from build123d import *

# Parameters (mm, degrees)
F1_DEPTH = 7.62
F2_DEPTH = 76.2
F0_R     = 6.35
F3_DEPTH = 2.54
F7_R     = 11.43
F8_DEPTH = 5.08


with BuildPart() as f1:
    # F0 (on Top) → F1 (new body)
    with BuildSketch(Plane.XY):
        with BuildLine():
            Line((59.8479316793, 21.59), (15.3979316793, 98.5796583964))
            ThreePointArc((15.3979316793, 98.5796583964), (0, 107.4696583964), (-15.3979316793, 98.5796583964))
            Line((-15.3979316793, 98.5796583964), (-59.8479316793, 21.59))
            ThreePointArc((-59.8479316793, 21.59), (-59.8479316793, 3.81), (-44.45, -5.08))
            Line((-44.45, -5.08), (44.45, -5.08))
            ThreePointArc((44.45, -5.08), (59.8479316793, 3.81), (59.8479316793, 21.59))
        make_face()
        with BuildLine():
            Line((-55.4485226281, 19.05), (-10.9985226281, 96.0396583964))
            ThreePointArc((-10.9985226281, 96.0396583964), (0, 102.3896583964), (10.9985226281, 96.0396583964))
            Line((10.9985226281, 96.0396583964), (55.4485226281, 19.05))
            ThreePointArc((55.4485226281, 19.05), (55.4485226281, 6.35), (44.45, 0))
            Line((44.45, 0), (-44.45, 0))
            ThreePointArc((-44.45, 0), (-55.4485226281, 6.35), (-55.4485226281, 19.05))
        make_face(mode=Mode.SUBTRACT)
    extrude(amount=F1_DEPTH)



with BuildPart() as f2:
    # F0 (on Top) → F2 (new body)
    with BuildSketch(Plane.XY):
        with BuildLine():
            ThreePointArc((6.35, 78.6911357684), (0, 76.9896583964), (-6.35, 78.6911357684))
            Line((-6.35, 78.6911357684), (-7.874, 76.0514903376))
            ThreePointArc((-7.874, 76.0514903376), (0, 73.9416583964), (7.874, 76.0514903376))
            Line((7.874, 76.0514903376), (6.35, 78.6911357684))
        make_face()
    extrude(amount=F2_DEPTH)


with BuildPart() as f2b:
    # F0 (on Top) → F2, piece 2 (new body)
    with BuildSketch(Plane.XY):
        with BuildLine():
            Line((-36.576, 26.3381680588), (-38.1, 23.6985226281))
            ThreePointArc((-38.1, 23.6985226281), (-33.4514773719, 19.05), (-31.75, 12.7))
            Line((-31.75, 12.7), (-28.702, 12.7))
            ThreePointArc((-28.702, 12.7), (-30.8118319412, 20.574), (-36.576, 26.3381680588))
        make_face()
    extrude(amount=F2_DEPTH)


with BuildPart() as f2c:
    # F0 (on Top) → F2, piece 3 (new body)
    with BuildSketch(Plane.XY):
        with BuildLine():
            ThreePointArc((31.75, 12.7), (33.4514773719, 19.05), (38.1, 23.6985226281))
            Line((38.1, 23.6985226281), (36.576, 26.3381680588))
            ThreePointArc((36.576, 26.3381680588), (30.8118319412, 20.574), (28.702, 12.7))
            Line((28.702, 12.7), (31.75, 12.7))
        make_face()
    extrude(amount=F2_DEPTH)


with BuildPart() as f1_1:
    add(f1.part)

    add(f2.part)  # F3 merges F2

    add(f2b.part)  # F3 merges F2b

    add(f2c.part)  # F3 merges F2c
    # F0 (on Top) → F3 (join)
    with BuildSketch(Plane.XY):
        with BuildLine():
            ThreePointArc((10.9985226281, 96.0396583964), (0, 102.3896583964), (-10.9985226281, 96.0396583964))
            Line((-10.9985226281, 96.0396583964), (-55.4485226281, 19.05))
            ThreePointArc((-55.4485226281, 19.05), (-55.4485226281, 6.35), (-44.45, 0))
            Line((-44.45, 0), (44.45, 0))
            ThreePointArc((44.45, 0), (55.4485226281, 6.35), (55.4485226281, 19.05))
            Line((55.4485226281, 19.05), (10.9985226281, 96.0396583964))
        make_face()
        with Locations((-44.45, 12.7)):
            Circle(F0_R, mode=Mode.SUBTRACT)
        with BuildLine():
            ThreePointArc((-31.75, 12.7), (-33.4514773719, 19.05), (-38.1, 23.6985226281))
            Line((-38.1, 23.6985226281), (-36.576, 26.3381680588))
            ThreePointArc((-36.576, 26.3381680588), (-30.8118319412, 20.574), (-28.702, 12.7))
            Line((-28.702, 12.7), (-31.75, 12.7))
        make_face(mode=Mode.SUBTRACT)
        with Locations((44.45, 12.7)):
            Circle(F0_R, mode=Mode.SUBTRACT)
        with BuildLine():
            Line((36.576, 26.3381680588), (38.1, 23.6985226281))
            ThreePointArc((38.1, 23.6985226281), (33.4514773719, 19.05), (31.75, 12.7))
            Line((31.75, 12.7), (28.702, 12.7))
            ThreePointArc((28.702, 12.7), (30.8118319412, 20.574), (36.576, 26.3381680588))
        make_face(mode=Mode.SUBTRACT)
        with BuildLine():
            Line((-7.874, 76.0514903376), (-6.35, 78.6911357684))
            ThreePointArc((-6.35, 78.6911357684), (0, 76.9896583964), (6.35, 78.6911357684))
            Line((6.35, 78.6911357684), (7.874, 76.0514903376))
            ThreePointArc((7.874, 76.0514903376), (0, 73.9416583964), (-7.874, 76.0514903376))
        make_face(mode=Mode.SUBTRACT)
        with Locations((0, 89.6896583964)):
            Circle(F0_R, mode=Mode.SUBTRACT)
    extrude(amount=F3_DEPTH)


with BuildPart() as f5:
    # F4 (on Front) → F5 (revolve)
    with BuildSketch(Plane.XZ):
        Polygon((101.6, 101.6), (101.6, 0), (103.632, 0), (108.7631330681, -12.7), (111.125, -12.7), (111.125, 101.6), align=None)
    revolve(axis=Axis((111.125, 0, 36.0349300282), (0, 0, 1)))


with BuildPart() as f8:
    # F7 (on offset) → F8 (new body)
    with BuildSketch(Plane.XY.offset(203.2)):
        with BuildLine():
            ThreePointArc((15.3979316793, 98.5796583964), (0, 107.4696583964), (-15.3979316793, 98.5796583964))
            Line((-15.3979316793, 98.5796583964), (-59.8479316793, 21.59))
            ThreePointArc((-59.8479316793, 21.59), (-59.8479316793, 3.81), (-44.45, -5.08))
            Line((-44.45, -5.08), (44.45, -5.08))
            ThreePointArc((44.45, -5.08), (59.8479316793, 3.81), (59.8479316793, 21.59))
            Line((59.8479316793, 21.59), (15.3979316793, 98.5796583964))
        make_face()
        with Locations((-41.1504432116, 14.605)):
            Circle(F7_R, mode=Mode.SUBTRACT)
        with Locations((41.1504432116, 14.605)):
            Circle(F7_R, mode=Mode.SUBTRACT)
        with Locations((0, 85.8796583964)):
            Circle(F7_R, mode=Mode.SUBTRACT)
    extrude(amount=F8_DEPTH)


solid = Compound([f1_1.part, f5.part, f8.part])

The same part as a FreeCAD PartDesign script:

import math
import FreeCAD as App
import Part
import Sketcher

V = App.Vector
Q = App.Units.Quantity


def add_polygon(sketch, points):
    """Adds a closed chain of lines whose ends are joined by coincident constraints."""
    first, n = sketch.GeometryCount, len(points)
    for a, b in zip(points, points[1:] + points[:1]):
        sketch.addGeometry(Part.LineSegment(App.Vector(*a, 0), App.Vector(*b, 0)), False)
    for i in range(n):
        sketch.addConstraint(Sketcher.Constraint("Coincident", first + i, 2, first + (i + 1) % n, 1))

doc = App.newDocument("Part")
body = doc.addObject("PartDesign::Body", "Body")

sketch1 = body.newObject("Sketcher::SketchObject", "Sketch")
sketch1.AttachmentSupport = (doc.getObject("XY_Plane"), [""])
sketch1.MapMode = "FlatFace"
sketch1.addGeometry([
    Part.LineSegment(V(60, 22, 0), V(15, 99, 0)),
    Part.ArcOfCircle(Part.Circle(V(0, 90, 0), V(0, 0, 1), 18), math.radians(30), math.radians(150)),
    Part.LineSegment(V(-15, 99, 0), V(-60, 22, 0)),
    Part.ArcOfCircle(Part.Circle(V(-44, 13, 0), V(0, 0, 1), 18), math.radians(150), math.radians(270)),
    Part.LineSegment(V(-44, -5, 0), V(44, -5, 0)),
    Part.ArcOfCircle(Part.Circle(V(44, 13, 0), V(0, 0, 1), 18), math.radians(-90), math.radians(30)),
    Part.ArcOfCircle(Part.Circle(V(-44, 13, 0), V(0, 0, 1), 13), math.radians(150), math.radians(270)),
    Part.LineSegment(V(-55, 19, 0), V(-11, 96, 0)),
    Part.ArcOfCircle(Part.Circle(V(0, 90, 0), V(0, 0, 1), 13), math.radians(30), math.radians(150)),
    Part.LineSegment(V(11, 96, 0), V(55, 19, 0)),
    Part.ArcOfCircle(Part.Circle(V(44, 13, 0), V(0, 0, 1), 13), math.radians(-90), math.radians(30)),
    Part.LineSegment(V(44, 0, 0), V(-44, 0, 0)),
], False)
sketch1.addConstraint([
    Sketcher.Constraint("Tangent", 0, 2, 1, 1),
    Sketcher.Constraint("Tangent", 1, 2, 2, 1),
    Sketcher.Constraint("Tangent", 2, 2, 3, 1),
    Sketcher.Constraint("Tangent", 3, 2, 4, 1),
    Sketcher.Constraint("Tangent", 4, 2, 5, 1),
    Sketcher.Constraint("Tangent", 5, 2, 0, 1),
    Sketcher.Constraint("Tangent", 6, 1, 7, 1),
    Sketcher.Constraint("Tangent", 7, 2, 8, 2),
    Sketcher.Constraint("Tangent", 8, 1, 9, 1),
    Sketcher.Constraint("Tangent", 9, 2, 10, 2),
    Sketcher.Constraint("Tangent", 10, 1, 11, 1),
    Sketcher.Constraint("Tangent", 11, 2, 6, 2),
    Sketcher.Constraint("Horizontal", 4),
    Sketcher.Constraint("Horizontal", 11),
    Sketcher.Constraint("Coincident", 6, 3, 3, 3),
    Sketcher.Constraint("Coincident", 8, 3, 1, 3),
    Sketcher.Constraint("Coincident", 10, 3, 5, 3),
    Sketcher.Constraint("Equal", 1, 3),
    Sketcher.Constraint("Equal", 3, 5),
    Sketcher.Constraint("Equal", 6, 8),
    Sketcher.Constraint("Symmetric", 10, 1, 11, 2, -1, 1),
    Sketcher.Constraint("PointOnObject", 1, 3, -2),
    Sketcher.Constraint("Radius", 1, Q("0.7 in")),
    Sketcher.Constraint("Radius", 6, Q("0.5 in")),
    Sketcher.Constraint("DistanceX", 4, 1, 4, 2, Q("3.5 in")),
    Sketcher.Constraint("Angle", 0, Q("120 deg")),
])
pad1 = body.newObject("PartDesign::Pad", "Pad")
pad1.Profile = sketch1
pad1.Length = Q("0.3 in")
body2 = doc.addObject("PartDesign::Body", "Body001")

sketch2 = body2.newObject("Sketcher::SketchObject", "Sketch001")
sketch2.AttachmentSupport = (doc.getObject("XY_Plane001"), [""])
sketch2.MapMode = "FlatFace"
sketch2.addGeometry([
    Part.ArcOfCircle(Part.Circle(V(0, 89.7, 0), V(0, 0, 1), 12.7), math.radians(-120), math.radians(-60)),
    Part.LineSegment(V(-6.3, 78.7, 0), V(-7.9, 76.1, 0)),
    Part.ArcOfCircle(Part.Circle(V(0, 89.7, 0), V(0, 0, 1), 15.7), math.radians(-120), math.radians(-60)),
    Part.LineSegment(V(7.9, 76.1, 0), V(6.3, 78.7, 0)),
], False)
sketch2.addConstraint([
    Sketcher.Constraint("Coincident", 0, 1, 1, 1),
    Sketcher.Constraint("Coincident", 1, 2, 2, 1),
    Sketcher.Constraint("Coincident", 2, 2, 3, 1),
    Sketcher.Constraint("Coincident", 3, 2, 0, 2),
    Sketcher.Constraint("Coincident", 2, 3, 0, 3),
    Sketcher.Constraint("Symmetric", 1, 2, 2, 2, -2),
    Sketcher.Constraint("Horizontal", 0, 1, 3, 2),
    Sketcher.Constraint("Radius", 0, Q("0.5 in")),
    Sketcher.Constraint("Radius", 2, Q("0.62 in")),
    Sketcher.Constraint("Angle", 1, Q("-120 deg")),
    Sketcher.Constraint("DistanceX", 0, 1, 3, 2, Q("0.5 in")),
    Sketcher.Constraint("DistanceY", -1, 1, 0, 3, 89.689658),
])
pad2 = body2.newObject("PartDesign::Pad", "Pad001")
pad2.Profile = sketch2
pad2.Length = Q("3 in")
body3 = doc.addObject("PartDesign::Body", "Body002")

sketch3 = body3.newObject("Sketcher::SketchObject", "Sketch002")
sketch3.AttachmentSupport = (doc.getObject("XY_Plane002"), [""])
sketch3.MapMode = "FlatFace"
sketch3.addGeometry([
    Part.LineSegment(V(-36.6, 26.3, 0), V(-38.1, 23.7, 0)),
    Part.ArcOfCircle(Part.Circle(V(-44.5, 12.7, 0), V(0, 0, 1), 12.7), math.radians(0), math.radians(60)),
    Part.LineSegment(V(-31.8, 12.7, 0), V(-28.7, 12.7, 0)),
    Part.ArcOfCircle(Part.Circle(V(-44.5, 12.7, 0), V(0, 0, 1), 15.7), math.radians(0), math.radians(60)),
], False)
sketch3.addConstraint([
    Sketcher.Constraint("Coincident", 0, 2, 1, 2),
    Sketcher.Constraint("Coincident", 1, 1, 2, 1),
    Sketcher.Constraint("Coincident", 2, 2, 3, 1),
    Sketcher.Constraint("Coincident", 3, 2, 0, 1),
    Sketcher.Constraint("Horizontal", 2),
    Sketcher.Constraint("Coincident", 3, 3, 1, 3),
    Sketcher.Constraint("Horizontal", 3, 3, 1, 1),
    Sketcher.Constraint("Radius", 1, Q("0.5 in")),
    Sketcher.Constraint("Radius", 3, Q("0.62 in")),
    Sketcher.Constraint("Angle", 0, Q("-120 deg")),
    Sketcher.Constraint("DistanceY", -1, 1, 1, 3, Q("0.5 in")),
    Sketcher.Constraint("DistanceX", 0, 2, -1, 1, Q("1.5 in")),
    Sketcher.Constraint("DistanceX", 1, 3, -1, 1, Q("1.75 in")),
])
pad3 = body3.newObject("PartDesign::Pad", "Pad002")
pad3.Profile = sketch3
pad3.Length = Q("3 in")
body4 = doc.addObject("PartDesign::Body", "Body003")

sketch4 = body4.newObject("Sketcher::SketchObject", "Sketch003")
sketch4.AttachmentSupport = (doc.getObject("XY_Plane003"), [""])
sketch4.MapMode = "FlatFace"
sketch4.addGeometry([
    Part.ArcOfCircle(Part.Circle(V(44.5, 12.7, 0), V(0, 0, 1), 12.7), math.radians(120), math.radians(180)),
    Part.LineSegment(V(38.1, 23.7, 0), V(36.6, 26.3, 0)),
    Part.ArcOfCircle(Part.Circle(V(44.5, 12.7, 0), V(0, 0, 1), 15.7), math.radians(120), math.radians(180)),
    Part.LineSegment(V(28.7, 12.7, 0), V(31.8, 12.7, 0)),
], False)
sketch4.addConstraint([
    Sketcher.Constraint("Coincident", 0, 1, 1, 1),
    Sketcher.Constraint("Coincident", 1, 2, 2, 1),
    Sketcher.Constraint("Coincident", 2, 2, 3, 1),
    Sketcher.Constraint("Coincident", 3, 2, 0, 2),
    Sketcher.Constraint("Horizontal", 3),
    Sketcher.Constraint("Coincident", 2, 3, 0, 3),
    Sketcher.Constraint("Horizontal", 0, 3, 2, 2),
    Sketcher.Constraint("Radius", 0, Q("0.5 in")),
    Sketcher.Constraint("Radius", 2, Q("0.62 in")),
    Sketcher.Constraint("Angle", 1, Q("120 deg")),
    Sketcher.Constraint("DistanceY", -1, 1, 0, 3, Q("0.5 in")),
    Sketcher.Constraint("DistanceX", -1, 1, 0, 1, Q("1.5 in")),
    Sketcher.Constraint("DistanceX", -1, 1, 0, 3, Q("1.75 in")),
])
pad4 = body4.newObject("PartDesign::Pad", "Pad003")
pad4.Profile = sketch4
pad4.Length = Q("3 in")
body.AllowCompound = True
doc.recompute()

boolean = body.newObject("PartDesign::Boolean", "Boolean")
boolean.Type = "Fuse"
boolean.addObjects([body2])
doc.recompute()

boolean2 = body.newObject("PartDesign::Boolean", "Boolean001")
boolean2.Type = "Fuse"
boolean2.addObjects([body3])
doc.recompute()

boolean3 = body.newObject("PartDesign::Boolean", "Boolean002")
boolean3.Type = "Fuse"
boolean3.addObjects([body4])

sketch5 = body.newObject("Sketcher::SketchObject", "Sketch004")
sketch5.AttachmentSupport = (doc.getObject("XY_Plane"), [""])
sketch5.MapMode = "FlatFace"
sketch5.addGeometry([
    Part.ArcOfCircle(Part.Circle(V(0, 89.7, 0), V(0, 0, 1), 12.7), math.radians(30), math.radians(150)),
    Part.LineSegment(V(-11, 96, 0), V(-55.4, 19.1, 0)),
    Part.ArcOfCircle(Part.Circle(V(-44.5, 12.7, 0), V(0, 0, 1), 12.7), math.radians(150), math.radians(270)),
    Part.LineSegment(V(-44.5, 0, 0), V(44.5, 0, 0)),
    Part.ArcOfCircle(Part.Circle(V(44.5, 12.7, 0), V(0, 0, 1), 12.7), math.radians(-90), math.radians(30)),
    Part.LineSegment(V(55.4, 19.1, 0), V(11, 96, 0)),
    Part.Circle(V(-44.5, 12.7, 0), V(0, 0, 1), 6.3),
    Part.LineSegment(V(-28.7, 12.7, 0), V(-31.8, 12.7, 0)),
    Part.ArcOfCircle(Part.Circle(V(-44.5, 12.7, 0), V(0, 0, 1), 12.7), math.radians(0), math.radians(60)),
    Part.LineSegment(V(-38.1, 23.7, 0), V(-36.6, 26.3, 0)),
    Part.ArcOfCircle(Part.Circle(V(-44.5, 12.7, 0), V(0, 0, 1), 15.7), math.radians(0), math.radians(60)),
    Part.Circle(V(44.5, 12.7, 0), V(0, 0, 1), 6.3),
    Part.ArcOfCircle(Part.Circle(V(44.5, 12.7, 0), V(0, 0, 1), 15.7), math.radians(120), math.radians(180)),
    Part.LineSegment(V(36.6, 26.3, 0), V(38.1, 23.7, 0)),
    Part.ArcOfCircle(Part.Circle(V(44.5, 12.7, 0), V(0, 0, 1), 12.7), math.radians(120), math.radians(180)),
    Part.LineSegment(V(31.8, 12.7, 0), V(28.7, 12.7, 0)),
    Part.ArcOfCircle(Part.Circle(V(0, 89.7, 0), V(0, 0, 1), 15.7), math.radians(-120), math.radians(-60)),
    Part.LineSegment(V(-7.9, 76.1, 0), V(-6.3, 78.7, 0)),
    Part.ArcOfCircle(Part.Circle(V(0, 89.7, 0), V(0, 0, 1), 12.7), math.radians(-120), math.radians(-60)),
    Part.LineSegment(V(6.3, 78.7, 0), V(7.9, 76.1, 0)),
    Part.Circle(V(0, 89.7, 0), V(0, 0, 1), 6.3),
], False)
sketch5.addConstraint([
    Sketcher.Constraint("Tangent", 0, 2, 1, 1),
    Sketcher.Constraint("Tangent", 1, 2, 2, 1),
    Sketcher.Constraint("Tangent", 2, 2, 3, 1),
    Sketcher.Constraint("Tangent", 3, 2, 4, 1),
    Sketcher.Constraint("Tangent", 4, 2, 5, 1),
    Sketcher.Constraint("Tangent", 5, 2, 0, 1),
    Sketcher.Constraint("Coincident", 7, 2, 8, 1),
    Sketcher.Constraint("Coincident", 8, 2, 9, 1),
    Sketcher.Constraint("Coincident", 9, 2, 10, 2),
    Sketcher.Constraint("Coincident", 10, 1, 7, 1),
    Sketcher.Constraint("Coincident", 12, 1, 13, 1),
    Sketcher.Constraint("Coincident", 13, 2, 14, 1),
    Sketcher.Constraint("Coincident", 14, 2, 15, 1),
    Sketcher.Constraint("Coincident", 15, 2, 12, 2),
    Sketcher.Constraint("Coincident", 16, 1, 17, 1),
    Sketcher.Constraint("Coincident", 17, 2, 18, 1),
    Sketcher.Constraint("Coincident", 18, 2, 19, 1),
    Sketcher.Constraint("Coincident", 19, 2, 16, 2),
    Sketcher.Constraint("Horizontal", 3),
    Sketcher.Constraint("Horizontal", 7),
    Sketcher.Constraint("Horizontal", 15),
    Sketcher.Constraint("Coincident", 6, 3, 2, 3),
    Sketcher.Constraint("Coincident", 8, 3, 2, 3),
    Sketcher.Constraint("Coincident", 10, 3, 2, 3),
    Sketcher.Constraint("Coincident", 11, 3, 4, 3),
    Sketcher.Constraint("Coincident", 12, 3, 4, 3),
    Sketcher.Constraint("Coincident", 14, 3, 4, 3),
    Sketcher.Constraint("Coincident", 16, 3, 0, 3),
    Sketcher.Constraint("Coincident", 18, 3, 0, 3),
    Sketcher.Constraint("Coincident", 20, 3, 0, 3),
    Sketcher.Constraint("Equal", 0, 2),
    Sketcher.Constraint("Equal", 2, 4),
    Sketcher.Constraint("Equal", 4, 8),
    Sketcher.Constraint("Equal", 6, 11),
    Sketcher.Constraint("Equal", 10, 12),
    Sketcher.Constraint("Equal", 8, 14),
    Sketcher.Constraint("Equal", 12, 16),
    Sketcher.Constraint("Equal", 14, 18),
    Sketcher.Constraint("Equal", 11, 20),
    Sketcher.Constraint("Symmetric", 2, 2, 3, 2, -1, 1),
    Sketcher.Constraint("Symmetric", 17, 2, 18, 2, -2),
    Sketcher.Constraint("Parallel", 1, 9),
    Sketcher.Constraint("Parallel", 5, 13),
    Sketcher.Constraint("Parallel", 9, 17),
    Sketcher.Constraint("Parallel", 13, 19),
    Sketcher.Constraint("Horizontal", 14, 3, 7, 2),
    Sketcher.Constraint("Horizontal", 9, 2, 12, 1),
    Sketcher.Constraint("Horizontal", 10, 1, 14, 2),
    Sketcher.Constraint("Diameter", 6, Q("0.5 in")),
    Sketcher.Constraint("Radius", 0, Q("0.5 in")),
    Sketcher.Constraint("Radius", 10, Q("0.62 in")),
    Sketcher.Constraint("DistanceX", 3, 1, 3, 2, Q("3.5 in")),
    Sketcher.Constraint("Angle", 1, Q("-120 deg")),
    Sketcher.Constraint("DistanceX", 8, 2, -1, 1, Q("1.5 in")),
    Sketcher.Constraint("DistanceX", 17, 2, 18, 2, Q("0.5 in")),
])
pad5 = body.newObject("PartDesign::Pad", "Pad004")
pad5.Profile = sketch5
pad5.Length = Q("0.1 in")
body5 = doc.addObject("PartDesign::Body", "Body004")

sketch6 = body5.newObject("Sketcher::SketchObject", "Sketch005")
sketch6.AttachmentSupport = (doc.getObject("XZ_Plane004"), [""])
sketch6.MapMode = "FlatFace"
add_polygon(sketch6, [(101.6, 101.6), (101.6, 0), (103.6, 0), (108.8, -12.7), (111.1, -12.7), (111.1, 101.6)])
sketch6.addGeometry(Part.LineSegment(V(111.1, -12.7, 0), V(111.1, 101.6, 0)), True)
sketch6.addConstraint([
    Sketcher.Constraint("Vertical", 0),
    Sketcher.Constraint("Horizontal", 1),
    Sketcher.Constraint("Horizontal", 3),
    Sketcher.Constraint("Vertical", 4),
    Sketcher.Constraint("Horizontal", 5),
    Sketcher.Constraint("Vertical", 6),
    Sketcher.Constraint("Coincident", 6, 1, 3, 2),
    Sketcher.Constraint("PointOnObject", 0, 2, -1),
    Sketcher.Constraint("Horizontal", 5, 2, 6, 2),
    Sketcher.Constraint("DistanceY", 0, 2, 0, 1, Q("4 in")),
    Sketcher.Constraint("DistanceY", 4, 1, 4, 2, Q("4.5 in")),
    Sketcher.Constraint("DistanceX", -1, 1, 0, 2, Q("4 in")),
    Sketcher.Constraint("Angle", 2, Q("-68 deg")),
    Sketcher.Constraint("DistanceX", 1, 1, 1, 2, Q("0.08 in")),
    Sketcher.Constraint("DistanceX", 5, 2, 5, 1, Q("0.375 in")),
])
revolution = body5.newObject("PartDesign::Revolution", "Revolution")
revolution.Profile = sketch6
revolution.ReferenceAxis = (sketch6, ["Axis0"])
revolution.Angle = 360
body6 = doc.addObject("PartDesign::Body", "Body005")

sketch7 = body6.newObject("Sketcher::SketchObject", "Sketch006")
sketch7.AttachmentSupport = (doc.getObject("XY_Plane005"), [""])
sketch7.MapMode = "FlatFace"
sketch7.AttachmentOffset = App.Placement(V(0, 0, 8 * 25.4), App.Rotation())
sketch7.addGeometry([
    Part.ArcOfCircle(Part.Circle(V(0, 90, 0), V(0, 0, 1), 18), math.radians(30), math.radians(150)),
    Part.LineSegment(V(-15, 99, 0), V(-60, 22, 0)),
    Part.ArcOfCircle(Part.Circle(V(-44, 13, 0), V(0, 0, 1), 18), math.radians(150), math.radians(270)),
    Part.LineSegment(V(-44, -5, 0), V(44, -5, 0)),
    Part.ArcOfCircle(Part.Circle(V(44, 13, 0), V(0, 0, 1), 18), math.radians(-90), math.radians(30)),
    Part.LineSegment(V(60, 22, 0), V(15, 99, 0)),
    Part.Circle(V(-41, 15, 0), V(0, 0, 1), 11),
    Part.Circle(V(41, 15, 0), V(0, 0, 1), 11),
    Part.Circle(V(0, 86, 0), V(0, 0, 1), 11),
], False)
sketch7.addConstraint([
    Sketcher.Constraint("Tangent", 0, 2, 1, 1),
    Sketcher.Constraint("Tangent", 1, 2, 2, 1),
    Sketcher.Constraint("Tangent", 2, 2, 3, 1),
    Sketcher.Constraint("Tangent", 3, 2, 4, 1),
    Sketcher.Constraint("Tangent", 4, 2, 5, 1),
    Sketcher.Constraint("Tangent", 5, 2, 0, 1),
    Sketcher.Constraint("Horizontal", 3),
    Sketcher.Constraint("Equal", 0, 2),
    Sketcher.Constraint("Equal", 2, 4),
    Sketcher.Constraint("Equal", 6, 7),
    Sketcher.Constraint("Equal", 7, 8),
    Sketcher.Constraint("Symmetric", 6, 3, 7, 3, -2),
    Sketcher.Constraint("Symmetric", 1, 2, 4, 2, -2),
    Sketcher.Constraint("PointOnObject", 8, 3, -2),
    Sketcher.Constraint("Diameter", 6, Q("0.9 in")),
    Sketcher.Constraint("Radius", 0, Q("0.7 in")),
    Sketcher.Constraint("DistanceX", 3, 1, 3, 2, Q("3.5 in")),
    Sketcher.Constraint("Angle", 1, Q("-120 deg")),
    Sketcher.Constraint("DistanceY", -1, 1, 2, 3, Q("0.5 in")),
    Sketcher.Constraint("DistanceY", 8, 3, 0, 2, Q("0.5 in")),
    Sketcher.Constraint("DistanceY", -1, 1, 6, 3, Q("0.575 in")),
    Sketcher.Constraint("DistanceX", 6, 3, 0, 2, 25.752512),
])
pad6 = body6.newObject("PartDesign::Pad", "Pad005")
pad6.Profile = sketch7
pad6.Length = Q("0.2 in")

doc.recompute()
